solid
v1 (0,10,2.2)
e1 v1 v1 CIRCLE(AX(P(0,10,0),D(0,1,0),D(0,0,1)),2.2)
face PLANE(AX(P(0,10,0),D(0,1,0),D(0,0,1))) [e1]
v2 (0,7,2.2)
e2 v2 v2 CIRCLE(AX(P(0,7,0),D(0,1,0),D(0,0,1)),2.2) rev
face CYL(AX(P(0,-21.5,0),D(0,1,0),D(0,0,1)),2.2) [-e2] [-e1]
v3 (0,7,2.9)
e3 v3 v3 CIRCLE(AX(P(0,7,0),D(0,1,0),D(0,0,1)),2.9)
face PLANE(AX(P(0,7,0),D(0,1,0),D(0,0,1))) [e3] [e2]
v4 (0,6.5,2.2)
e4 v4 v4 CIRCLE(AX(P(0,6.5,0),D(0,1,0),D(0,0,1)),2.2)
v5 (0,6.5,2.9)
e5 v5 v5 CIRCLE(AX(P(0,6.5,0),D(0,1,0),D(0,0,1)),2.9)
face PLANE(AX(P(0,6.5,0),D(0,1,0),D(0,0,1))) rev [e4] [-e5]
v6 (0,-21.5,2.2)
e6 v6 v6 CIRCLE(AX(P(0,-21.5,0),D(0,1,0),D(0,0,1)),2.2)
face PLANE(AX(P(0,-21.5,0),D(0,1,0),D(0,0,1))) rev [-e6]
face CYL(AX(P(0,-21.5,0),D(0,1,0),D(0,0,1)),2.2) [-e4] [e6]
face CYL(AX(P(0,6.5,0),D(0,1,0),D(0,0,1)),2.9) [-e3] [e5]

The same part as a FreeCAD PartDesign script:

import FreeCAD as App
import Part
import Sketcher

V = App.Vector

doc = App.newDocument("Part")
body = doc.addObject("PartDesign::Body", "Body")

sketch1 = doc.addObject("Sketcher::SketchObject", "Sketch")
body.addObject(sketch1)
sketch1.AttachmentSupport = (doc.XZ_Plane, [""])
sketch1.MapMode = "FlatFace"
sketch1.addGeometry(Part.Circle(V(0, 0, 0), V(0, 0, 1), 2.2), False)
sketch1.addConstraint([
    Sketcher.Constraint("Coincident", 0, 3, -1, 1),
    Sketcher.Constraint("Diameter", 0, 4.4),
])
pad1 = doc.addObject("PartDesign::Pad", "Pad")
body.addObject(pad1)
pad1.Profile = sketch1
pad1.Type = "TwoLengths"
pad1.Length = 10
pad1.Length2 = 21.5
pad1.Reversed = True

sketch2 = doc.addObject("Sketcher::SketchObject", "Sketch001")
body.addObject(sketch2)
sketch2.AttachmentSupport = (doc.XZ_Plane, [""])
sketch2.MapMode = "FlatFace"
sketch2.AttachmentOffset = App.Placement(V(0, 0, -7), App.Rotation())
sketch2.addGeometry([
    Part.Circle(V(0, 0, 0), V(0, 0, 1), 2.9),
    Part.Circle(V(0, 0, 0), V(0, 0, 1), 2.2),
], False)
sketch2.addConstraint([
    Sketcher.Constraint("Coincident", 0, 3, -1, 1),
    Sketcher.Constraint("Coincident", 1, 3, -1, 1),
    Sketcher.Constraint("Diameter", 0, 5.8),
    Sketcher.Constraint("Diameter", 1, 4.4),
])
pad2 = doc.addObject("PartDesign::Pad", "Pad001")
body.addObject(pad2)
pad2.Profile = sketch2
pad2.Length = 0.5

doc.recompute()
